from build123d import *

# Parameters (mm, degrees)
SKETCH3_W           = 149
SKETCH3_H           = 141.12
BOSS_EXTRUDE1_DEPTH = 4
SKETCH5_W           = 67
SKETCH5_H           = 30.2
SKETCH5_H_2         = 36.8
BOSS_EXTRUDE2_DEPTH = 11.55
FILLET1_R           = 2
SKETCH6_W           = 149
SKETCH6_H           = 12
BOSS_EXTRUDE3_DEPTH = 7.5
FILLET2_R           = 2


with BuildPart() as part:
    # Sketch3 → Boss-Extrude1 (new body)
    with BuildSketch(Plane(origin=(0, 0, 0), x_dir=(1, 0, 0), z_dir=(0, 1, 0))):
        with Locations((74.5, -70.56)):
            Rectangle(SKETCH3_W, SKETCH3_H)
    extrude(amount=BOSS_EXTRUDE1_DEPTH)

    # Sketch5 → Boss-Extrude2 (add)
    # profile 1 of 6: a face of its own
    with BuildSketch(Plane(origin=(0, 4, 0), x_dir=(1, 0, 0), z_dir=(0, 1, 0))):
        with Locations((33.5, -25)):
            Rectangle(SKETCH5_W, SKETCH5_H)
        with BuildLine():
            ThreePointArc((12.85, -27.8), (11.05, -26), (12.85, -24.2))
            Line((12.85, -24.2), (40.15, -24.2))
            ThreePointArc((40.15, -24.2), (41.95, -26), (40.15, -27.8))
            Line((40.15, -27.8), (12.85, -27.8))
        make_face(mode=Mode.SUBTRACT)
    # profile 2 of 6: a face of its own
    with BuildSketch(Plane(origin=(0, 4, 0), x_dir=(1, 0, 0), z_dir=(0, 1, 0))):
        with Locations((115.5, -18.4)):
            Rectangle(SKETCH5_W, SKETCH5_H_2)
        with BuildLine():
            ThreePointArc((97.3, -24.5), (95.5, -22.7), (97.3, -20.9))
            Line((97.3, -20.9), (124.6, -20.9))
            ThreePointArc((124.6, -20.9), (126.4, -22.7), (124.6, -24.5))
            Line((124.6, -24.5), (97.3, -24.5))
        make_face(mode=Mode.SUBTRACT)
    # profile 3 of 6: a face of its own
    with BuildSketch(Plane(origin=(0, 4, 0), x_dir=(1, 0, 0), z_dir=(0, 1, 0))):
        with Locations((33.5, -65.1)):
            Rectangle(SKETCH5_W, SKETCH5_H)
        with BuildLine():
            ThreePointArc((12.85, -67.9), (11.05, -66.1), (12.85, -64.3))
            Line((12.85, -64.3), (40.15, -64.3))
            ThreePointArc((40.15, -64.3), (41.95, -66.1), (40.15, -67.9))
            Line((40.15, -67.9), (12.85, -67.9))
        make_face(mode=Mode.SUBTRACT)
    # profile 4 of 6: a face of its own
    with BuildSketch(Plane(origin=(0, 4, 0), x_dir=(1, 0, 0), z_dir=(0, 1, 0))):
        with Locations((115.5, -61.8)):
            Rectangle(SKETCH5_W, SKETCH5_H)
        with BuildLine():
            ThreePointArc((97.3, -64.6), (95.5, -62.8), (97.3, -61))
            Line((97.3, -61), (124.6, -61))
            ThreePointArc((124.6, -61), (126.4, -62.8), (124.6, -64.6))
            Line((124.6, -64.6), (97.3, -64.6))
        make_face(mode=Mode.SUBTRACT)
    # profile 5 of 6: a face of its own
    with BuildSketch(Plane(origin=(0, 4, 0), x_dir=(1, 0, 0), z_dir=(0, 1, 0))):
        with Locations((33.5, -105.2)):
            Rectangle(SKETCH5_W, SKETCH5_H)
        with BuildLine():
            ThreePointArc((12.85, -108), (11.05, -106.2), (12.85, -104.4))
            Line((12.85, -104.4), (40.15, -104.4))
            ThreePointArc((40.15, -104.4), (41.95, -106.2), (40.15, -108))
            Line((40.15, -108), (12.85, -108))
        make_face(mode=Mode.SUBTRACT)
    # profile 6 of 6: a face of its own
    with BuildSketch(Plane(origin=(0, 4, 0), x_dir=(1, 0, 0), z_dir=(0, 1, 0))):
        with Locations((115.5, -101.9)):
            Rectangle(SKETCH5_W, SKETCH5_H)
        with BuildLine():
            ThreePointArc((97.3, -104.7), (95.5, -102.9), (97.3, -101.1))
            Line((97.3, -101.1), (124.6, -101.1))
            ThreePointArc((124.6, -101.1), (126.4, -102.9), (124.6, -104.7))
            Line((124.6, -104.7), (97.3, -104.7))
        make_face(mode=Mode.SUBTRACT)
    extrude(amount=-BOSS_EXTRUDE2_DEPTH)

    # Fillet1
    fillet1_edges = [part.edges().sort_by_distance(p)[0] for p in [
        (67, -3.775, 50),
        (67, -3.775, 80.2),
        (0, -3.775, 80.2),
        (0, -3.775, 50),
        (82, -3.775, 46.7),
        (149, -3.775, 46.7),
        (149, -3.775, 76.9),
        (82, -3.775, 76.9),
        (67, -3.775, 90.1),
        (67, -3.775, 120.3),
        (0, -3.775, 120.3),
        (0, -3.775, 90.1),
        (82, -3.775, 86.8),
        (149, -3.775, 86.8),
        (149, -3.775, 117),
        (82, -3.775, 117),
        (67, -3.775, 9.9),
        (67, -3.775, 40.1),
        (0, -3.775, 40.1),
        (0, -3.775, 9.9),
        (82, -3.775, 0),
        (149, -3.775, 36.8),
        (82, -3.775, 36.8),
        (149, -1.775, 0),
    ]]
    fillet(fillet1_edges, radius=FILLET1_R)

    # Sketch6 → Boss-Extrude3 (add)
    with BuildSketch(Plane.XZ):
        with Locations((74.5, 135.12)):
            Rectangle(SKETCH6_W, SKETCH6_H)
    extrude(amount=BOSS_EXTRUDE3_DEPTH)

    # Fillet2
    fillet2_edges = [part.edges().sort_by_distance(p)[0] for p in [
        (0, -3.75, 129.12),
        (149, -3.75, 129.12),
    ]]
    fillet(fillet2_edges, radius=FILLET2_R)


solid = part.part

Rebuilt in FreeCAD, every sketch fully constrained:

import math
import FreeCAD as App
import Part
import Sketcher

V = App.Vector


def edges_at(feature, points):
    """Names of the edges that pass closest to the given points."""
    edges = feature.Shape.Edges
    near = lambda p: min(range(len(edges)), key=lambda i: edges[i].distToShape(Part.Vertex(*p))[0])
    return sorted({f"Edge{near(p) + 1}" for p in points})


def add_polygon(sketch, points):
    """Adds a closed chain of lines whose ends are joined by coincident constraints."""
    first, n = sketch.GeometryCount, len(points)
    for a, b in zip(points, points[1:] + points[:1]):
        sketch.addGeometry(Part.LineSegment(App.Vector(*a, 0), App.Vector(*b, 0)), False)
    for i in range(n):
        sketch.addConstraint(Sketcher.Constraint("Coincident", first + i, 2, first + (i + 1) % n, 1))

doc = App.newDocument("Part")
body = doc.addObject("PartDesign::Body", "Body")

# Sketch on XZ plane
sketch1 = body.newObject("Sketcher::SketchObject", "Sketch")
sketch1.AttachmentSupport = (doc.getObject("XZ_Plane"), [""])
sketch1.MapMode = "FlatFace"
add_polygon(sketch1, [(0, 0), (0, 141.12), (149, 141.12), (149, 0)])  # lines 0-3
sketch1.addConstraint([
    Sketcher.Constraint("Vertical", 0),
    Sketcher.Constraint("Horizontal", 1),
    Sketcher.Constraint("Vertical", 2),
    Sketcher.Constraint("Horizontal", 3),
    Sketcher.Constraint("Coincident", 3, 2, -1, 1),
    Sketcher.Constraint("DistanceX", 1, 1, 1, 2, 149.0),
    Sketcher.Constraint("DistanceY", 0, 1, 0, 2, 141.12),
])
pad1 = body.newObject("PartDesign::Pad", "Pad")
pad1.Profile = sketch1
pad1.Length = 4
pad1.Reversed = True

# Sketch on XZ plane
sketch2 = body.newObject("Sketcher::SketchObject", "Sketch001")
sketch2.AttachmentSupport = (doc.getObject("XZ_Plane"), [""])
sketch2.MapMode = "FlatFace"
sketch2.AttachmentOffset = App.Placement(V(0, 0, -4), App.Rotation())
add_polygon(sketch2, [(0, 9.9), (0, 40.1), (67, 40.1), (67, 9.9)])  # lines 0-3
sketch2.addGeometry(Part.LineSegment(V(40.15, 27.8, 0), V(12.85, 27.8, 0)), False)  # 4
sketch2.addGeometry(Part.ArcOfCircle(Part.Circle(V(12.85, 26, 0), V(0, 0, 1), 1.8), math.radians(90), math.radians(270)), False)  # 5
sketch2.addGeometry(Part.LineSegment(V(12.85, 24.2, 0), V(40.15, 24.2, 0)), False)  # 6
sketch2.addGeometry(Part.ArcOfCircle(Part.Circle(V(40.15, 26, 0), V(0, 0, 1), 1.8), math.radians(-90), math.radians(90)), False)  # 7
add_polygon(sketch2, [(82, 0), (82, 36.8), (149, 36.8), (149, 0)])  # lines 8-11
sketch2.addGeometry(Part.LineSegment(V(124.6, 24.5, 0), V(97.3, 24.5, 0)), False)  # 12
sketch2.addGeometry(Part.ArcOfCircle(Part.Circle(V(97.3, 22.7, 0), V(0, 0, 1), 1.8), math.radians(90), math.radians(270)), False)  # 13
sketch2.addGeometry(Part.LineSegment(V(97.3, 20.9, 0), V(124.6, 20.9, 0)), False)  # 14
sketch2.addGeometry(Part.ArcOfCircle(Part.Circle(V(124.6, 22.7, 0), V(0, 0, 1), 1.8), math.radians(-90), math.radians(90)), False)  # 15
add_polygon(sketch2, [(0, 50), (0, 80.2), (67, 80.2), (67, 50)])  # lines 16-19
sketch2.addGeometry(Part.LineSegment(V(40.15, 67.9, 0), V(12.85, 67.9, 0)), False)  # 20
sketch2.addGeometry(Part.ArcOfCircle(Part.Circle(V(12.85, 66.1, 0), V(0, 0, 1), 1.8), math.radians(90), math.radians(270)), False)  # 21
sketch2.addGeometry(Part.LineSegment(V(12.85, 64.3, 0), V(40.15, 64.3, 0)), False)  # 22
sketch2.addGeometry(Part.ArcOfCircle(Part.Circle(V(40.15, 66.1, 0), V(0, 0, 1), 1.8), math.radians(-90), math.radians(90)), False)  # 23
add_polygon(sketch2, [(82, 46.7), (82, 76.9), (149, 76.9), (149, 46.7)])  # lines 24-27
sketch2.addGeometry(Part.LineSegment(V(124.6, 64.6, 0), V(97.3, 64.6, 0)), False)  # 28
sketch2.addGeometry(Part.ArcOfCircle(Part.Circle(V(97.3, 62.8, 0), V(0, 0, 1), 1.8), math.radians(90), math.radians(270)), False)  # 29
sketch2.addGeometry(Part.LineSegment(V(97.3, 61, 0), V(124.6, 61, 0)), False)  # 30
sketch2.addGeometry(Part.ArcOfCircle(Part.Circle(V(124.6, 62.8, 0), V(0, 0, 1), 1.8), math.radians(-90), math.radians(90)), False)  # 31
add_polygon(sketch2, [(0, 90.1), (0, 120.3), (67, 120.3), (67, 90.1)])  # lines 32-35
sketch2.addGeometry(Part.LineSegment(V(40.15, 108, 0), V(12.85, 108, 0)), False)  # 36
sketch2.addGeometry(Part.ArcOfCircle(Part.Circle(V(12.85, 106.2, 0), V(0, 0, 1), 1.8), math.radians(90), math.radians(270)), False)  # 37
sketch2.addGeometry(Part.LineSegment(V(12.85, 104.4, 0), V(40.15, 104.4, 0)), False)  # 38
sketch2.addGeometry(Part.ArcOfCircle(Part.Circle(V(40.15, 106.2, 0), V(0, 0, 1), 1.8), math.radians(-90), math.radians(90)), False)  # 39
add_polygon(sketch2, [(82, 86.8), (82, 117), (149, 117), (149, 86.8)])  # lines 40-43
sketch2.addGeometry(Part.LineSegment(V(124.6, 104.7, 0), V(97.3, 104.7, 0)), False)  # 44
sketch2.addGeometry(Part.ArcOfCircle(Part.Circle(V(97.3, 102.9, 0), V(0, 0, 1), 1.8), math.radians(90), math.radians(270)), False)  # 45
sketch2.addGeometry(Part.LineSegment(V(97.3, 101.1, 0), V(124.6, 101.1, 0)), False)  # 46
sketch2.addGeometry(Part.ArcOfCircle(Part.Circle(V(124.6, 102.9, 0), V(0, 0, 1), 1.8), math.radians(-90), math.radians(90)), False)  # 47
sketch2.addConstraint([
    Sketcher.Constraint("Tangent", 4, 2, 5, 1),
    Sketcher.Constraint("Tangent", 5, 2, 6, 1),
    Sketcher.Constraint("Tangent", 6, 2, 7, 1),
    Sketcher.Constraint("Tangent", 7, 2, 4, 1),
    Sketcher.Constraint("Tangent", 12, 2, 13, 1),
    Sketcher.Constraint("Tangent", 13, 2, 14, 1),
    Sketcher.Constraint("Tangent", 14, 2, 15, 1),
    Sketcher.Constraint("Tangent", 15, 2, 12, 1),
    Sketcher.Constraint("Tangent", 20, 2, 21, 1),
    Sketcher.Constraint("Tangent", 21, 2, 22, 1),
    Sketcher.Constraint("Tangent", 22, 2, 23, 1),
    Sketcher.Constraint("Tangent", 23, 2, 20, 1),
    Sketcher.Constraint("Tangent", 28, 2, 29, 1),
    Sketcher.Constraint("Tangent", 29, 2, 30, 1),
    Sketcher.Constraint("Tangent", 30, 2, 31, 1),
    Sketcher.Constraint("Tangent", 31, 2, 28, 1),
    Sketcher.Constraint("Tangent", 36, 2, 37, 1),
    Sketcher.Constraint("Tangent", 37, 2, 38, 1),
    Sketcher.Constraint("Tangent", 38, 2, 39, 1),
    Sketcher.Constraint("Tangent", 39, 2, 36, 1),
    Sketcher.Constraint("Tangent", 44, 2, 45, 1),
    Sketcher.Constraint("Tangent", 45, 2, 46, 1),
    Sketcher.Constraint("Tangent", 46, 2, 47, 1),
    Sketcher.Constraint("Tangent", 47, 2, 44, 1),
    Sketcher.Constraint("Vertical", 0),
    Sketcher.Constraint("Horizontal", 1),
    Sketcher.Constraint("Vertical", 2),
    Sketcher.Constraint("Horizontal", 3),
    Sketcher.Constraint("Horizontal", 4),
    Sketcher.Constraint("Horizontal", 6),
    Sketcher.Constraint("Vertical", 8),
    Sketcher.Constraint("Horizontal", 9),
    Sketcher.Constraint("Vertical", 10),
    Sketcher.Constraint("Horizontal", 11),
    Sketcher.Constraint("Horizontal", 12),
    Sketcher.Constraint("Horizontal", 14),
    Sketcher.Constraint("Vertical", 16),
    Sketcher.Constraint("Horizontal", 17),
    Sketcher.Constraint("Vertical", 18),
    Sketcher.Constraint("Horizontal", 19),
    Sketcher.Constraint("Horizontal", 20),
    Sketcher.Constraint("Horizontal", 22),
    Sketcher.Constraint("Vertical", 24),
    Sketcher.Constraint("Horizontal", 25),
    Sketcher.Constraint("Vertical", 26),
    Sketcher.Constraint("Horizontal", 27),
    Sketcher.Constraint("Horizontal", 28),
    Sketcher.Constraint("Horizontal", 30),
    Sketcher.Constraint("Vertical", 32),
    Sketcher.Constraint("Horizontal", 33),
    Sketcher.Constraint("Vertical", 34),
    Sketcher.Constraint("Horizontal", 35),
    Sketcher.Constraint("Horizontal", 36),
    Sketcher.Constraint("Horizontal", 38),
    Sketcher.Constraint("Vertical", 40),
    Sketcher.Constraint("Horizontal", 41),
    Sketcher.Constraint("Vertical", 42),
    Sketcher.Constraint("Horizontal", 43),
    Sketcher.Constraint("Horizontal", 44),
    Sketcher.Constraint("Horizontal", 46),
    Sketcher.Constraint("Equal", 7, 13),
    Sketcher.Constraint("Equal", 15, 21),
    Sketcher.Constraint("Equal", 23, 29),
    Sketcher.Constraint("Equal", 31, 37),
    Sketcher.Constraint("Equal", 39, 45),
    Sketcher.Constraint("PointOnObject", 0, 2, -2),
    Sketcher.Constraint("PointOnObject", 10, 2, -1),
    Sketcher.Constraint("PointOnObject", 16, 2, -2),
    Sketcher.Constraint("PointOnObject", 32, 2, -2),
    Sketcher.Constraint("Vertical", 5, 3, 21, 3),
    Sketcher.Constraint("Vertical", 7, 3, 23, 3),
    Sketcher.Constraint("Vertical", 13, 3, 29, 3),
    Sketcher.Constraint("Vertical", 15, 3, 31, 3),
    Sketcher.Constraint("Vertical", 21, 3, 37, 3),
    Sketcher.Constraint("Vertical", 23, 3, 39, 3),
    Sketcher.Constraint("Vertical", 29, 3, 45, 3),
    Sketcher.Constraint("Vertical", 31, 3, 47, 3),
    Sketcher.Constraint("Vertical", 2, 2, 17, 2),
    Sketcher.Constraint("Vertical", 11, 2, 24, 2),
    Sketcher.Constraint("Vertical", 10, 2, 25, 2),
    Sketcher.Constraint("Vertical", 18, 2, 33, 2),
    Sketcher.Constraint("Vertical", 27, 2, 40, 2),
    Sketcher.Constraint("Vertical", 26, 2, 41, 2),
    Sketcher.Constraint("Equal", 3, 9),
    Sketcher.Constraint("Equal", 6, 12),
    Sketcher.Constraint("Equal", 2, 16),
    Sketcher.Constraint("Equal", 18, 24),
    Sketcher.Constraint("Equal", 26, 32),
    Sketcher.Constraint("Equal", 34, 40),
    Sketcher.Constraint("Radius", 5, 1.8),
    Sketcher.Constraint("DistanceX", 1, 1, 1, 2, 67.0),
    Sketcher.Constraint("DistanceX", 4, 2, 4, 1, 27.3),
    Sketcher.Constraint("DistanceY", 0, 1, 0, 2, 30.2),
    Sketcher.Constraint("DistanceY", 8, 1, 8, 2, 36.8),
    Sketcher.Constraint("DistanceY", -1, 1, 5, 3, 26.0),
    Sketcher.Constraint("DistanceX", -1, 1, 8, 2, 82.0),
    Sketcher.Constraint("DistanceY", -1, 1, 18, 2, 50.0),
    Sketcher.Constraint("DistanceY", -1, 1, 29, 2, 61.0),
    Sketcher.Constraint("DistanceY", -1, 1, 36, 2, 108.0),
    Sketcher.Constraint("DistanceY", -1, 1, 40, 2, 117.0),
    Sketcher.Constraint("DistanceY", 0, 2, 21, 3, 26.0),
    Sketcher.Constraint("DistanceY", 24, 2, 45, 3, 26.0),
    Sketcher.Constraint("DistanceY", 15, 3, 26, 2, 24.0),
    Sketcher.Constraint("DistanceY", 21, 3, 35, 2, 24.0),
    Sketcher.Constraint("DistanceX", -1, 1, 13, 3, 97.3),
    Sketcher.Constraint("DistanceY", -1, 1, 13, 3, 22.7),
    Sketcher.Constraint("DistanceY", -1, 1, 21, 3, 66.1),
    Sketcher.Constraint("DistanceX", -1, 1, 5, 3, 12.85),
])
pad2 = body.newObject("PartDesign::Pad", "Pad001")
pad2.Profile = sketch2
pad2.Length = 11.55
doc.recompute()

fillet = body.newObject("PartDesign::Fillet", "Fillet")
fillet.Base = (pad2, edges_at(pad2, [
    (67, -3.775, 50),
    (67, -3.775, 80.2),
    (0, -3.775, 80.2),
    (0, -3.775, 50),
    (82, -3.775, 46.7),
    (149, -3.775, 46.7),
    (149, -3.775, 76.9),
    (82, -3.775, 76.9),
    (67, -3.775, 90.1),
    (67, -3.775, 120.3),
    (0, -3.775, 120.3),
    (0, -3.775, 90.1),
    (82, -3.775, 86.8),
    (149, -3.775, 86.8),
    (149, -3.775, 117),
    (82, -3.775, 117),
    (67, -3.775, 9.9),
    (67, -3.775, 40.1),
    (0, -3.775, 40.1),
    (0, -3.775, 9.9),
    (82, -3.775, 0),
    (149, -3.775, 36.8),
    (82, -3.775, 36.8),
    (149, -1.775, 0),
]))
fillet.Radius = 2

# Sketch on XZ plane
sketch3 = body.newObject("Sketcher::SketchObject", "Sketch002")
sketch3.AttachmentSupport = (doc.getObject("XZ_Plane"), [""])
sketch3.MapMode = "FlatFace"
add_polygon(sketch3, [(0, 141.12), (0, 129.12), (149, 129.12), (149, 141.12)])  # lines 0-3
sketch3.addConstraint([
    Sketcher.Constraint("Vertical", 0),
    Sketcher.Constraint("Horizontal", 1),
    Sketcher.Constraint("Vertical", 2),
    Sketcher.Constraint("Horizontal", 3),
    Sketcher.Constraint("PointOnObject", 0, 2, -2),
    Sketcher.Constraint("DistanceX", 1, 1, 1, 2, 149.0),
    Sketcher.Constraint("DistanceY", 0, 2, 0, 1, 12.0),
    Sketcher.Constraint("DistanceY", -1, 1, 0, 2, 129.12),
])
pad3 = body.newObject("PartDesign::Pad", "Pad002")
pad3.Profile = sketch3
pad3.Length = 7.5
doc.recompute()

fillet2 = body.newObject("PartDesign::Fillet", "Fillet001")
fillet2.Base = (pad3, edges_at(pad3, [(0, -3.75, 129.12), (149, -3.75, 129.12)]))
fillet2.Radius = 2

doc.recompute()
